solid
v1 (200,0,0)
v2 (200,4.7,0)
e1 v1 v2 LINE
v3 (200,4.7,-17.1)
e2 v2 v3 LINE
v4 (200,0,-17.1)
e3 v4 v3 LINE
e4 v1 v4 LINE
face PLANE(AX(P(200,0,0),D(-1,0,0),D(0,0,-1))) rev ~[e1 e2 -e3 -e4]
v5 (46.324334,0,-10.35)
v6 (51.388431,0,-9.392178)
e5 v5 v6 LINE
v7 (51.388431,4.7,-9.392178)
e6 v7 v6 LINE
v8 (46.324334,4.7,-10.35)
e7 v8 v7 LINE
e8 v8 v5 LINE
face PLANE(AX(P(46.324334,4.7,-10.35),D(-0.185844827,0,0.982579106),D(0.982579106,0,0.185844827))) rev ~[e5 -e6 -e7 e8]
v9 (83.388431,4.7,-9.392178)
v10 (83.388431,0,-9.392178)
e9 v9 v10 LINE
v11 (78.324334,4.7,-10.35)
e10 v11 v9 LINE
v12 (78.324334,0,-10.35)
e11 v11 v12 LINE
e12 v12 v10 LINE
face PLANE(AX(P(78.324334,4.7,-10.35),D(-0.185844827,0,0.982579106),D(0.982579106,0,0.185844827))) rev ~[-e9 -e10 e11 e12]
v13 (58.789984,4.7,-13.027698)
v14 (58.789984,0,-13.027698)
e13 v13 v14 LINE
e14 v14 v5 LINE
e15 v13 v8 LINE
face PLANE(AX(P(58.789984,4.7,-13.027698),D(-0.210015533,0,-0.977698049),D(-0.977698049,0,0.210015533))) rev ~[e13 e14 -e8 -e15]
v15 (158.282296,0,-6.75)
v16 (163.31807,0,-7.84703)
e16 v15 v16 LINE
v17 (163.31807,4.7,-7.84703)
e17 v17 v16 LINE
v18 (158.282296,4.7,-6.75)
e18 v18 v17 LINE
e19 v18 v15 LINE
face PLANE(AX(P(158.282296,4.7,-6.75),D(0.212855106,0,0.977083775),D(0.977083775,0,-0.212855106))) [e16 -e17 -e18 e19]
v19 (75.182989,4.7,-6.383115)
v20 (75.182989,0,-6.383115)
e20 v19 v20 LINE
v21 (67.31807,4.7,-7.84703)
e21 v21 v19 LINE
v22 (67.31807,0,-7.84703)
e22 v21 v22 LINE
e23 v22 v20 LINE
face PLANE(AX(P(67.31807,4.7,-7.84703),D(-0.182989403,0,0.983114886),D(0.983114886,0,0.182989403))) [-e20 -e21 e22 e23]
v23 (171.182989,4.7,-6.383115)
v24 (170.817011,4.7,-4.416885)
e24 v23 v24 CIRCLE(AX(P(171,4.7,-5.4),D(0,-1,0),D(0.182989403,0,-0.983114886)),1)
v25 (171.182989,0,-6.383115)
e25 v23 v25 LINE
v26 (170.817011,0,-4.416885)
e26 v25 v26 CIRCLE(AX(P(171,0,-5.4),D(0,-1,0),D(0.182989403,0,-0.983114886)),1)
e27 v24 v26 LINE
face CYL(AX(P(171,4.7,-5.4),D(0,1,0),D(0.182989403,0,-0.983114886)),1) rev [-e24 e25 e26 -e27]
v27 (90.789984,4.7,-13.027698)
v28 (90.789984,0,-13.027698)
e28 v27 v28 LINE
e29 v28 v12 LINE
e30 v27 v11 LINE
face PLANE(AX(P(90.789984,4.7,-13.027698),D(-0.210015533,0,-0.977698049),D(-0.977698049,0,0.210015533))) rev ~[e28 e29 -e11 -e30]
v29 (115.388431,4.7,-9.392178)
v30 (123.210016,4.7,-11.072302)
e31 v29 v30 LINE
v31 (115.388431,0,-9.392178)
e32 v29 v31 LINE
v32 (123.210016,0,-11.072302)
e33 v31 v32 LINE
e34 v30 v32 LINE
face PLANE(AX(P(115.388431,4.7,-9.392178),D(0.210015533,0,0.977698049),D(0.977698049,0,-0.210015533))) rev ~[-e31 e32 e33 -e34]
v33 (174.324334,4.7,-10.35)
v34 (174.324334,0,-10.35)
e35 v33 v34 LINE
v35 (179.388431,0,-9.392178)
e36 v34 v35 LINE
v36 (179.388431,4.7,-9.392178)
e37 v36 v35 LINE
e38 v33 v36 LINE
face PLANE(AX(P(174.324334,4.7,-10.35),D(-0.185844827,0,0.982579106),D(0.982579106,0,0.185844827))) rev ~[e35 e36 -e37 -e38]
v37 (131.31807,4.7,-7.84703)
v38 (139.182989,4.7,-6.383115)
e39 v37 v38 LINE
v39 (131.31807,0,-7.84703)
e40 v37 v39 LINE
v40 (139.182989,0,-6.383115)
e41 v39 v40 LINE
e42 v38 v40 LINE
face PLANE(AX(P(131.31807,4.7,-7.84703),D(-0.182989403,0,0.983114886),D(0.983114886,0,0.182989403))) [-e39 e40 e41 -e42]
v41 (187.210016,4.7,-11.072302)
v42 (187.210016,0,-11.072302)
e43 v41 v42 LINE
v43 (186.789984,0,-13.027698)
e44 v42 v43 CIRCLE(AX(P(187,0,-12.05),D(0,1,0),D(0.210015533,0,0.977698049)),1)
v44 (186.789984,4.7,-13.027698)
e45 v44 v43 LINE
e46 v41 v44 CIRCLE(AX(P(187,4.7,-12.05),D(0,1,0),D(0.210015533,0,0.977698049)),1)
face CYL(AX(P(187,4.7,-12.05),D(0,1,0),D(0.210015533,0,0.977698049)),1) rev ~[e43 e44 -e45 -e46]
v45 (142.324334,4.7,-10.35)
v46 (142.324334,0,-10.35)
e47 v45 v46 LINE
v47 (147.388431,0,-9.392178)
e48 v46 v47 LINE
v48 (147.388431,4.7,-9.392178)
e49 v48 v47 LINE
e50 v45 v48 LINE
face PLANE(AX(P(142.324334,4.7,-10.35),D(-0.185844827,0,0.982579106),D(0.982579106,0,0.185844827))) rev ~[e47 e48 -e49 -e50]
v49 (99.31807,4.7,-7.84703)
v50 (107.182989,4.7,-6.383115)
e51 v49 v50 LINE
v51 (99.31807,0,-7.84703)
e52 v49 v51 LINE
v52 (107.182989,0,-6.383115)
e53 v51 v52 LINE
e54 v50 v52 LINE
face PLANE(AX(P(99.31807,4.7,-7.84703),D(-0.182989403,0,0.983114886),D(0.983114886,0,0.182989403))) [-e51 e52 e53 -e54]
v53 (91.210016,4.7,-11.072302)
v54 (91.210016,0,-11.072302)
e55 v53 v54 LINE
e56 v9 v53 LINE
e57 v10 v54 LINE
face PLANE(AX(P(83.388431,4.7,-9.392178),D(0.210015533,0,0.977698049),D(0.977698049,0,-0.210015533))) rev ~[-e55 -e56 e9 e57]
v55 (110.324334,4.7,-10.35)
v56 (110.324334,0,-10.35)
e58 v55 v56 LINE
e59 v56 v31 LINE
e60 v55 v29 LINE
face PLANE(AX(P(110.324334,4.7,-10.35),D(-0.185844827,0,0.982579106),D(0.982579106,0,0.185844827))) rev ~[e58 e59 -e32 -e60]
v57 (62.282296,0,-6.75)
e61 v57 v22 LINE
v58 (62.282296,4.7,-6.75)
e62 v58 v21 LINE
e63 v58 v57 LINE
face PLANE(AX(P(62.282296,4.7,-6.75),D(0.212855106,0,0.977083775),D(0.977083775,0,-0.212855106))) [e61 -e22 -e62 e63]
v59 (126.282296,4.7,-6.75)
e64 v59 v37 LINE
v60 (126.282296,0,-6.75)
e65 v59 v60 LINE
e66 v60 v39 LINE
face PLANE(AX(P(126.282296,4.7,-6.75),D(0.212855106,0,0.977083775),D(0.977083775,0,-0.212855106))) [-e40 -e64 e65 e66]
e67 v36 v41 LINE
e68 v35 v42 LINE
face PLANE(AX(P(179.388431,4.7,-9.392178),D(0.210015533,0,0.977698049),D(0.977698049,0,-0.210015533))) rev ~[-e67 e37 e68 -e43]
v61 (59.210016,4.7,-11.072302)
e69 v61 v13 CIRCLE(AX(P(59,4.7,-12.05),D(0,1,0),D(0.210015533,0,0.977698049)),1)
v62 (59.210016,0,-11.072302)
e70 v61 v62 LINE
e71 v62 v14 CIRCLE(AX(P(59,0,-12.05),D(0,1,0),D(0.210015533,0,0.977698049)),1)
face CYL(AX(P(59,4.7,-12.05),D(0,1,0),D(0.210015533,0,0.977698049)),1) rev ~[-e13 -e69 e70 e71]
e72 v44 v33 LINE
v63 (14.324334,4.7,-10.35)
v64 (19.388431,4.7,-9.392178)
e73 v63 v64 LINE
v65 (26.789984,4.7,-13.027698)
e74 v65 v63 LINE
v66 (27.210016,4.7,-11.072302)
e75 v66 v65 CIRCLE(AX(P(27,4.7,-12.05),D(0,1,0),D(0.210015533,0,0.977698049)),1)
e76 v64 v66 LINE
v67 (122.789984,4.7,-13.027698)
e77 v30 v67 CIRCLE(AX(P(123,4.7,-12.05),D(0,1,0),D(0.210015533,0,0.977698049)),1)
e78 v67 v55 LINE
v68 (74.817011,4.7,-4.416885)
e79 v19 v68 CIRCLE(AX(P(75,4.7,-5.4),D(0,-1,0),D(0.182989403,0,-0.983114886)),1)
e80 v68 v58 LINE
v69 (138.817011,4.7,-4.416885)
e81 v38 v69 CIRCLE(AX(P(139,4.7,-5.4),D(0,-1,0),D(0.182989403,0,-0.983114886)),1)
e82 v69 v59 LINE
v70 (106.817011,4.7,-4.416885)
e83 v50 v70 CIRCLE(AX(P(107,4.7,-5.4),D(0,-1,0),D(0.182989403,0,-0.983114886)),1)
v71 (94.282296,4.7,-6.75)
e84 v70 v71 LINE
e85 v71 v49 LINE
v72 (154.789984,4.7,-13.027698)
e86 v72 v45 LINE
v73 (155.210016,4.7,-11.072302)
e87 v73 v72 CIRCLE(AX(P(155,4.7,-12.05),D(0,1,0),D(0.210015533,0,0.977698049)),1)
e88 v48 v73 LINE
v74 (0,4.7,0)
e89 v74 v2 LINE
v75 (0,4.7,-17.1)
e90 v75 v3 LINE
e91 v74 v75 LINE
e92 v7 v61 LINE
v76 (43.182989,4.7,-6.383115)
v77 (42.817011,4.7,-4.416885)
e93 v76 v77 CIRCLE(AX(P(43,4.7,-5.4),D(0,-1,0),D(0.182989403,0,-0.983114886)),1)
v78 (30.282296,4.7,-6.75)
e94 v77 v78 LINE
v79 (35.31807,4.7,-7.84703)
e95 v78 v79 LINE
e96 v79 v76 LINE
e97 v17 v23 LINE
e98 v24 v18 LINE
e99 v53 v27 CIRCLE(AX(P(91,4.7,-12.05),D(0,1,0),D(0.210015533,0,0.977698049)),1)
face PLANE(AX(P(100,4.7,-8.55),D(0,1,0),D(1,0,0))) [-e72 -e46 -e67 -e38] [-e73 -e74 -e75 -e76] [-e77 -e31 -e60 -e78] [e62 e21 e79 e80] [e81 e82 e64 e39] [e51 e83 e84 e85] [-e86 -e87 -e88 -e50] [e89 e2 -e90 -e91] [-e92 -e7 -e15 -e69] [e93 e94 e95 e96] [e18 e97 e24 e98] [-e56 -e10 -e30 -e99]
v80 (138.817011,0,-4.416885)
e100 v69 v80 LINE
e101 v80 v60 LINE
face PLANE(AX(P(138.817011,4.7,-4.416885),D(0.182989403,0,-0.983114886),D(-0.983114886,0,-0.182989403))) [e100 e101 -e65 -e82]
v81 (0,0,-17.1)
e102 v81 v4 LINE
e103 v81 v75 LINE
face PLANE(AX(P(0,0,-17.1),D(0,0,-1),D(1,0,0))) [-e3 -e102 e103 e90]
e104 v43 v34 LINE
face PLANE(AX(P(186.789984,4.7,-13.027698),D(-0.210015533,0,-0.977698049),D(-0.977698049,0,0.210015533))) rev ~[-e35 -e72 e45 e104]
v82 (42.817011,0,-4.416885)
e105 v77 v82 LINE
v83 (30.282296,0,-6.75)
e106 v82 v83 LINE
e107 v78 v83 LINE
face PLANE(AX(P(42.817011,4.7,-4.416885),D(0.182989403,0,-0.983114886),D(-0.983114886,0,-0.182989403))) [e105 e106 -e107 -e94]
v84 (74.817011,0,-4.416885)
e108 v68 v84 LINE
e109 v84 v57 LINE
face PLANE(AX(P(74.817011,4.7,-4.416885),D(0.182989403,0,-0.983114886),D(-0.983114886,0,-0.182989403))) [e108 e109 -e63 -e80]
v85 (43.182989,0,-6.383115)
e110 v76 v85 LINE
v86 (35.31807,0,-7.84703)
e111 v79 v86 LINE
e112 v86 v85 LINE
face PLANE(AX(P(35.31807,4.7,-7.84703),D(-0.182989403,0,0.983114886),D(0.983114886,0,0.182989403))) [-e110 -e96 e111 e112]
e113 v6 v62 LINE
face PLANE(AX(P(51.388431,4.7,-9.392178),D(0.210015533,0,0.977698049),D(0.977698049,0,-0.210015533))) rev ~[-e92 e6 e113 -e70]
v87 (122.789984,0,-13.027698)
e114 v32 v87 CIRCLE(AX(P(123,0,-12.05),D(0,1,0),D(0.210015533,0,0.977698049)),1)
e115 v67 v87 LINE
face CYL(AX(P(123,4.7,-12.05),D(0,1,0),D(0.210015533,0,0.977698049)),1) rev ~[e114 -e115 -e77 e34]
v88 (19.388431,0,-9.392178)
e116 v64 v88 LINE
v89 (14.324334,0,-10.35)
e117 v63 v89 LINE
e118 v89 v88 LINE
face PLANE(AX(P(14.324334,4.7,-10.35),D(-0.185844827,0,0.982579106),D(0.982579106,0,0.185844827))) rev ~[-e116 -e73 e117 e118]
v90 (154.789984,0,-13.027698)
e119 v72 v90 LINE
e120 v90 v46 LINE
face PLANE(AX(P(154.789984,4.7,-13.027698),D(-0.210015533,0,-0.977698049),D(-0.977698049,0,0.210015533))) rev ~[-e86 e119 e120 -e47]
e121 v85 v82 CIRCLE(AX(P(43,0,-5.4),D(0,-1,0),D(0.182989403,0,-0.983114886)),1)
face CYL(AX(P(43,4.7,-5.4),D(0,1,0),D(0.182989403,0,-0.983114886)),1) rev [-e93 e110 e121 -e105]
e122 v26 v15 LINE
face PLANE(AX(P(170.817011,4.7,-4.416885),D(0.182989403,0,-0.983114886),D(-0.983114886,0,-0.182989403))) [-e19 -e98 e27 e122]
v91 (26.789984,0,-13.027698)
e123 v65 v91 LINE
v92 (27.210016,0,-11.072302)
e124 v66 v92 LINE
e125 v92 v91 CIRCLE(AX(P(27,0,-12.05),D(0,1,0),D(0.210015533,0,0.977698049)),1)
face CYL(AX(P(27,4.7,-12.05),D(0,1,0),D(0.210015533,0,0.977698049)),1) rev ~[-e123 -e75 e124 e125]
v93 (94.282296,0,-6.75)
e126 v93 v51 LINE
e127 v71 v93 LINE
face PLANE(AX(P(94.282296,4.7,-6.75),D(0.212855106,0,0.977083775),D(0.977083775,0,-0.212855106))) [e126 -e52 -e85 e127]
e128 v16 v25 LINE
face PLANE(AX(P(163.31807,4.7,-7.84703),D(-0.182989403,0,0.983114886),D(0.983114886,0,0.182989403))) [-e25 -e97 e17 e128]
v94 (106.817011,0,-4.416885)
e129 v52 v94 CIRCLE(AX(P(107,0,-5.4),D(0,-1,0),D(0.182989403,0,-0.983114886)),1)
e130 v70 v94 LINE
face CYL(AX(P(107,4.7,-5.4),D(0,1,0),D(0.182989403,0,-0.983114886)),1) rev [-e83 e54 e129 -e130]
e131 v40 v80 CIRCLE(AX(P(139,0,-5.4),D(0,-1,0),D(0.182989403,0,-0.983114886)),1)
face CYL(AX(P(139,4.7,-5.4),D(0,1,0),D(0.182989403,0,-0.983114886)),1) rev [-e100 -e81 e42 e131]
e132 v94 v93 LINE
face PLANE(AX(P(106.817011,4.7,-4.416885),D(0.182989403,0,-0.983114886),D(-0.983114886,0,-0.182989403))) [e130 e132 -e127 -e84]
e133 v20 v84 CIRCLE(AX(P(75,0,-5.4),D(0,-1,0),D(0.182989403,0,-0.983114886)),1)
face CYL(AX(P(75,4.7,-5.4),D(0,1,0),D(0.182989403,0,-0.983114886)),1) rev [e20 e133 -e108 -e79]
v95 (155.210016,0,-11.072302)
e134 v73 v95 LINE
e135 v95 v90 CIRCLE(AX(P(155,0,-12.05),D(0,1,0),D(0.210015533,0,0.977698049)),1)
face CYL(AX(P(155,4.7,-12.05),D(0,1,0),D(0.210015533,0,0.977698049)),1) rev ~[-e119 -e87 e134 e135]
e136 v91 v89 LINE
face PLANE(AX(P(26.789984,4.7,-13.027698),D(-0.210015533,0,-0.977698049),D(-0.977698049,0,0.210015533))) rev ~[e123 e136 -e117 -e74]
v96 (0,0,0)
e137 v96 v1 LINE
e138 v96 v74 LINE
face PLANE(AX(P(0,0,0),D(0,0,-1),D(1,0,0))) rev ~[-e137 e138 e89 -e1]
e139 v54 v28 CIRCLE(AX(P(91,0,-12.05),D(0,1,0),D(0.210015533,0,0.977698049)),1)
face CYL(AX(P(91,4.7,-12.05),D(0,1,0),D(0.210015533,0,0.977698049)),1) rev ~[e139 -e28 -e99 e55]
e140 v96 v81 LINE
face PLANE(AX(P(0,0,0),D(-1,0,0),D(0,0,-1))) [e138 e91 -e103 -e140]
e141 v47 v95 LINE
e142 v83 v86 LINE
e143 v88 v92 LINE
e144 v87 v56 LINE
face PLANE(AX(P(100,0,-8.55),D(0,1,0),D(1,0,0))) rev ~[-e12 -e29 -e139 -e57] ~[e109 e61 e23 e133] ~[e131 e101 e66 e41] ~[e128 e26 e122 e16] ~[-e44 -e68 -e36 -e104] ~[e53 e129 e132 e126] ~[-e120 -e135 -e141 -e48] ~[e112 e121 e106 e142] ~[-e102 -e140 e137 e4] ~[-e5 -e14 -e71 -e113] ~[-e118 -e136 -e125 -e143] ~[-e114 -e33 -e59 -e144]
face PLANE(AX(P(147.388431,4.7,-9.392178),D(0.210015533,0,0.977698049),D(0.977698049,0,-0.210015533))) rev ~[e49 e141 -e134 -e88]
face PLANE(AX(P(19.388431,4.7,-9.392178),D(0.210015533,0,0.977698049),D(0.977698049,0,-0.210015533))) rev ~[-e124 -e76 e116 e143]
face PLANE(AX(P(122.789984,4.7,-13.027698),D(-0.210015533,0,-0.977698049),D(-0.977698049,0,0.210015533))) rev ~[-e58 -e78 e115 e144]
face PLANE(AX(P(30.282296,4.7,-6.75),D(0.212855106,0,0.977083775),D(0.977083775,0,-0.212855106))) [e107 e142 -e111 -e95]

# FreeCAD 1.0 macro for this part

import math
import FreeCAD as App
import Part
import Sketcher
from FreeCAD import Vector
Q = App.Units.Quantity


def add_polygon(sketch, points):
    """Adds a closed chain of lines whose ends are joined by coincident constraints."""
    first, n = sketch.GeometryCount, len(points)
    for a, b in zip(points, points[1:] + points[:1]):
        sketch.addGeometry(Part.LineSegment(App.Vector(*a, 0), App.Vector(*b, 0)), False)
    for i in range(n):
        sketch.addConstraint(Sketcher.Constraint("Coincident", first + i, 2, first + (i + 1) % n, 1))

doc = App.newDocument("Part")
body = doc.addObject("PartDesign::Body", "Body")

# Sketch on XZ plane
sketch1 = body.newObject("Sketcher::SketchObject", "Sketch")
sketch1.AttachmentSupport = (doc.getObject("XZ_Plane"), [""])
sketch1.MapMode = "FlatFace"
add_polygon(sketch1, [(0, -17), (0, 0), (200, 0), (200, -17)])  # lines 0-3
sketch1.addConstraint([
    Sketcher.Constraint("Vertical", 0),
    Sketcher.Constraint("Horizontal", 1),
    Sketcher.Constraint("Vertical", 2),
    Sketcher.Constraint("Horizontal", 3),
    Sketcher.Constraint("Coincident", 0, 2, -1, 1),
    Sketcher.Constraint("DistanceX", 1, 1, 1, 2, Q("200 mm")),
    Sketcher.Constraint("DistanceY", 0, 1, 0, 2, Q("17.1 mm")),
])
pad1 = body.newObject("PartDesign::Pad", "Pad")
pad1.Profile = sketch1
pad1.Length = 4.7
pad1.Reversed = True

# Sketch on XZ plane
sketch2 = body.newObject("Sketcher::SketchObject", "Sketch001")
sketch2.AttachmentSupport = (doc.getObject("XZ_Plane"), [""])
sketch2.MapMode = "FlatFace"
sketch2.AttachmentOffset = App.Placement(Vector(0, 0, -4.7), App.Rotation())
sketch2.addGeometry([
    Part.LineSegment(Vector(26.8, -13, 0), Vector(14.3, -10.3, 0)),
    Part.LineSegment(Vector(14.3, -10.3, 0), Vector(19.4, -9.4, 0)),
    Part.LineSegment(Vector(19.4, -9.4, 0), Vector(27.2, -11.1, 0)),
    Part.ArcOfCircle(Part.Circle(Vector(27, -12.1, 0), Vector(0, 0, 1), 1), math.radians(-102), math.radians(78)),
], False)
sketch2.addConstraint([
    Sketcher.Constraint("Coincident", 0, 2, 1, 1),
    Sketcher.Constraint("Coincident", 1, 2, 2, 1),
    Sketcher.Constraint("Tangent", 2, 2, 3, 2),
    Sketcher.Constraint("Tangent", 3, 1, 0, 1),
    Sketcher.Constraint("Parallel", 0, 2),
    Sketcher.Constraint("Radius", 3, Q("1 mm")),
    Sketcher.Constraint("Distance", 2, Q("8 mm")),
    Sketcher.Constraint("DistanceX", -1, 1, 3, 3, Q("27 mm")),
    Sketcher.Constraint("DistanceY", 3, 3, 0, 2, Q("1.7 mm")),
    Sketcher.Constraint("Distance", 0, Q("12.75 mm")),
    Sketcher.Constraint("DistanceY", 3, 3, -1, 1, Q("12.05 mm")),
])
pocket1 = body.newObject("PartDesign::Pocket", "Pocket")
pocket1.Profile = sketch2
pocket1.Length = 4.7
pocket1.Reversed = True
doc.recompute()

linearpattern = body.newObject("PartDesign::LinearPattern", "LinearPattern")
linearpattern.Originals = [pocket1]
linearpattern.Direction = (doc.getObject("X_Axis"), [""])
linearpattern.Mode = "offset"
linearpattern.Offset = 32
linearpattern.Occurrences = 6
body.Tip = linearpattern

# Sketch on XZ plane
sketch3 = body.newObject("Sketcher::SketchObject", "Sketch002")
sketch3.AttachmentSupport = (doc.getObject("XZ_Plane"), [""])
sketch3.MapMode = "FlatFace"
sketch3.AttachmentOffset = App.Placement(Vector(0, 0, -4.7), App.Rotation())
sketch3.addGeometry([
    Part.LineSegment(Vector(30.3, -6.8, 0), Vector(42.8, -4.4, 0)),
    Part.ArcOfCircle(Part.Circle(Vector(43, -5.4, 0), Vector(0, 0, 1), 1), math.radians(-79), math.radians(101)),
    Part.LineSegment(Vector(43.2, -6.4, 0), Vector(35.3, -7.8, 0)),
    Part.LineSegment(Vector(35.3, -7.8, 0), Vector(30.3, -6.8, 0)),
], False)
sketch3.addConstraint([
    Sketcher.Constraint("Tangent", 0, 2, 1, 2),
    Sketcher.Constraint("Tangent", 1, 1, 2, 1),
    Sketcher.Constraint("Coincident", 2, 2, 3, 1),
    Sketcher.Constraint("Coincident", 3, 2, 0, 1),
    Sketcher.Constraint("Parallel", 0, 2),
    Sketcher.Constraint("Radius", 1, Q("1 mm")),
    Sketcher.Constraint("Distance", 2, Q("8 mm")),
    Sketcher.Constraint("DistanceX", -1, 1, 1, 3, Q("43 mm")),
    Sketcher.Constraint("DistanceY", 1, 3, -1, 1, Q("5.4 mm")),
    Sketcher.Constraint("Distance", 0, Q("12.75 mm")),
    Sketcher.Constraint("DistanceY", 3, 2, -1, 1, Q("6.75 mm")),
])
pocket2 = body.newObject("PartDesign::Pocket", "Pocket001")
pocket2.Profile = sketch3
pocket2.Length = 4.7
pocket2.Reversed = True
doc.recompute()

linearpattern2 = body.newObject("PartDesign::LinearPattern", "LinearPattern001")
linearpattern2.Originals = [pocket2]
linearpattern2.Direction = (doc.getObject("X_Axis"), [""])
linearpattern2.Mode = "offset"
linearpattern2.Offset = 32
linearpattern2.Occurrences = 5
body.Tip = linearpattern2

doc.recompute()
